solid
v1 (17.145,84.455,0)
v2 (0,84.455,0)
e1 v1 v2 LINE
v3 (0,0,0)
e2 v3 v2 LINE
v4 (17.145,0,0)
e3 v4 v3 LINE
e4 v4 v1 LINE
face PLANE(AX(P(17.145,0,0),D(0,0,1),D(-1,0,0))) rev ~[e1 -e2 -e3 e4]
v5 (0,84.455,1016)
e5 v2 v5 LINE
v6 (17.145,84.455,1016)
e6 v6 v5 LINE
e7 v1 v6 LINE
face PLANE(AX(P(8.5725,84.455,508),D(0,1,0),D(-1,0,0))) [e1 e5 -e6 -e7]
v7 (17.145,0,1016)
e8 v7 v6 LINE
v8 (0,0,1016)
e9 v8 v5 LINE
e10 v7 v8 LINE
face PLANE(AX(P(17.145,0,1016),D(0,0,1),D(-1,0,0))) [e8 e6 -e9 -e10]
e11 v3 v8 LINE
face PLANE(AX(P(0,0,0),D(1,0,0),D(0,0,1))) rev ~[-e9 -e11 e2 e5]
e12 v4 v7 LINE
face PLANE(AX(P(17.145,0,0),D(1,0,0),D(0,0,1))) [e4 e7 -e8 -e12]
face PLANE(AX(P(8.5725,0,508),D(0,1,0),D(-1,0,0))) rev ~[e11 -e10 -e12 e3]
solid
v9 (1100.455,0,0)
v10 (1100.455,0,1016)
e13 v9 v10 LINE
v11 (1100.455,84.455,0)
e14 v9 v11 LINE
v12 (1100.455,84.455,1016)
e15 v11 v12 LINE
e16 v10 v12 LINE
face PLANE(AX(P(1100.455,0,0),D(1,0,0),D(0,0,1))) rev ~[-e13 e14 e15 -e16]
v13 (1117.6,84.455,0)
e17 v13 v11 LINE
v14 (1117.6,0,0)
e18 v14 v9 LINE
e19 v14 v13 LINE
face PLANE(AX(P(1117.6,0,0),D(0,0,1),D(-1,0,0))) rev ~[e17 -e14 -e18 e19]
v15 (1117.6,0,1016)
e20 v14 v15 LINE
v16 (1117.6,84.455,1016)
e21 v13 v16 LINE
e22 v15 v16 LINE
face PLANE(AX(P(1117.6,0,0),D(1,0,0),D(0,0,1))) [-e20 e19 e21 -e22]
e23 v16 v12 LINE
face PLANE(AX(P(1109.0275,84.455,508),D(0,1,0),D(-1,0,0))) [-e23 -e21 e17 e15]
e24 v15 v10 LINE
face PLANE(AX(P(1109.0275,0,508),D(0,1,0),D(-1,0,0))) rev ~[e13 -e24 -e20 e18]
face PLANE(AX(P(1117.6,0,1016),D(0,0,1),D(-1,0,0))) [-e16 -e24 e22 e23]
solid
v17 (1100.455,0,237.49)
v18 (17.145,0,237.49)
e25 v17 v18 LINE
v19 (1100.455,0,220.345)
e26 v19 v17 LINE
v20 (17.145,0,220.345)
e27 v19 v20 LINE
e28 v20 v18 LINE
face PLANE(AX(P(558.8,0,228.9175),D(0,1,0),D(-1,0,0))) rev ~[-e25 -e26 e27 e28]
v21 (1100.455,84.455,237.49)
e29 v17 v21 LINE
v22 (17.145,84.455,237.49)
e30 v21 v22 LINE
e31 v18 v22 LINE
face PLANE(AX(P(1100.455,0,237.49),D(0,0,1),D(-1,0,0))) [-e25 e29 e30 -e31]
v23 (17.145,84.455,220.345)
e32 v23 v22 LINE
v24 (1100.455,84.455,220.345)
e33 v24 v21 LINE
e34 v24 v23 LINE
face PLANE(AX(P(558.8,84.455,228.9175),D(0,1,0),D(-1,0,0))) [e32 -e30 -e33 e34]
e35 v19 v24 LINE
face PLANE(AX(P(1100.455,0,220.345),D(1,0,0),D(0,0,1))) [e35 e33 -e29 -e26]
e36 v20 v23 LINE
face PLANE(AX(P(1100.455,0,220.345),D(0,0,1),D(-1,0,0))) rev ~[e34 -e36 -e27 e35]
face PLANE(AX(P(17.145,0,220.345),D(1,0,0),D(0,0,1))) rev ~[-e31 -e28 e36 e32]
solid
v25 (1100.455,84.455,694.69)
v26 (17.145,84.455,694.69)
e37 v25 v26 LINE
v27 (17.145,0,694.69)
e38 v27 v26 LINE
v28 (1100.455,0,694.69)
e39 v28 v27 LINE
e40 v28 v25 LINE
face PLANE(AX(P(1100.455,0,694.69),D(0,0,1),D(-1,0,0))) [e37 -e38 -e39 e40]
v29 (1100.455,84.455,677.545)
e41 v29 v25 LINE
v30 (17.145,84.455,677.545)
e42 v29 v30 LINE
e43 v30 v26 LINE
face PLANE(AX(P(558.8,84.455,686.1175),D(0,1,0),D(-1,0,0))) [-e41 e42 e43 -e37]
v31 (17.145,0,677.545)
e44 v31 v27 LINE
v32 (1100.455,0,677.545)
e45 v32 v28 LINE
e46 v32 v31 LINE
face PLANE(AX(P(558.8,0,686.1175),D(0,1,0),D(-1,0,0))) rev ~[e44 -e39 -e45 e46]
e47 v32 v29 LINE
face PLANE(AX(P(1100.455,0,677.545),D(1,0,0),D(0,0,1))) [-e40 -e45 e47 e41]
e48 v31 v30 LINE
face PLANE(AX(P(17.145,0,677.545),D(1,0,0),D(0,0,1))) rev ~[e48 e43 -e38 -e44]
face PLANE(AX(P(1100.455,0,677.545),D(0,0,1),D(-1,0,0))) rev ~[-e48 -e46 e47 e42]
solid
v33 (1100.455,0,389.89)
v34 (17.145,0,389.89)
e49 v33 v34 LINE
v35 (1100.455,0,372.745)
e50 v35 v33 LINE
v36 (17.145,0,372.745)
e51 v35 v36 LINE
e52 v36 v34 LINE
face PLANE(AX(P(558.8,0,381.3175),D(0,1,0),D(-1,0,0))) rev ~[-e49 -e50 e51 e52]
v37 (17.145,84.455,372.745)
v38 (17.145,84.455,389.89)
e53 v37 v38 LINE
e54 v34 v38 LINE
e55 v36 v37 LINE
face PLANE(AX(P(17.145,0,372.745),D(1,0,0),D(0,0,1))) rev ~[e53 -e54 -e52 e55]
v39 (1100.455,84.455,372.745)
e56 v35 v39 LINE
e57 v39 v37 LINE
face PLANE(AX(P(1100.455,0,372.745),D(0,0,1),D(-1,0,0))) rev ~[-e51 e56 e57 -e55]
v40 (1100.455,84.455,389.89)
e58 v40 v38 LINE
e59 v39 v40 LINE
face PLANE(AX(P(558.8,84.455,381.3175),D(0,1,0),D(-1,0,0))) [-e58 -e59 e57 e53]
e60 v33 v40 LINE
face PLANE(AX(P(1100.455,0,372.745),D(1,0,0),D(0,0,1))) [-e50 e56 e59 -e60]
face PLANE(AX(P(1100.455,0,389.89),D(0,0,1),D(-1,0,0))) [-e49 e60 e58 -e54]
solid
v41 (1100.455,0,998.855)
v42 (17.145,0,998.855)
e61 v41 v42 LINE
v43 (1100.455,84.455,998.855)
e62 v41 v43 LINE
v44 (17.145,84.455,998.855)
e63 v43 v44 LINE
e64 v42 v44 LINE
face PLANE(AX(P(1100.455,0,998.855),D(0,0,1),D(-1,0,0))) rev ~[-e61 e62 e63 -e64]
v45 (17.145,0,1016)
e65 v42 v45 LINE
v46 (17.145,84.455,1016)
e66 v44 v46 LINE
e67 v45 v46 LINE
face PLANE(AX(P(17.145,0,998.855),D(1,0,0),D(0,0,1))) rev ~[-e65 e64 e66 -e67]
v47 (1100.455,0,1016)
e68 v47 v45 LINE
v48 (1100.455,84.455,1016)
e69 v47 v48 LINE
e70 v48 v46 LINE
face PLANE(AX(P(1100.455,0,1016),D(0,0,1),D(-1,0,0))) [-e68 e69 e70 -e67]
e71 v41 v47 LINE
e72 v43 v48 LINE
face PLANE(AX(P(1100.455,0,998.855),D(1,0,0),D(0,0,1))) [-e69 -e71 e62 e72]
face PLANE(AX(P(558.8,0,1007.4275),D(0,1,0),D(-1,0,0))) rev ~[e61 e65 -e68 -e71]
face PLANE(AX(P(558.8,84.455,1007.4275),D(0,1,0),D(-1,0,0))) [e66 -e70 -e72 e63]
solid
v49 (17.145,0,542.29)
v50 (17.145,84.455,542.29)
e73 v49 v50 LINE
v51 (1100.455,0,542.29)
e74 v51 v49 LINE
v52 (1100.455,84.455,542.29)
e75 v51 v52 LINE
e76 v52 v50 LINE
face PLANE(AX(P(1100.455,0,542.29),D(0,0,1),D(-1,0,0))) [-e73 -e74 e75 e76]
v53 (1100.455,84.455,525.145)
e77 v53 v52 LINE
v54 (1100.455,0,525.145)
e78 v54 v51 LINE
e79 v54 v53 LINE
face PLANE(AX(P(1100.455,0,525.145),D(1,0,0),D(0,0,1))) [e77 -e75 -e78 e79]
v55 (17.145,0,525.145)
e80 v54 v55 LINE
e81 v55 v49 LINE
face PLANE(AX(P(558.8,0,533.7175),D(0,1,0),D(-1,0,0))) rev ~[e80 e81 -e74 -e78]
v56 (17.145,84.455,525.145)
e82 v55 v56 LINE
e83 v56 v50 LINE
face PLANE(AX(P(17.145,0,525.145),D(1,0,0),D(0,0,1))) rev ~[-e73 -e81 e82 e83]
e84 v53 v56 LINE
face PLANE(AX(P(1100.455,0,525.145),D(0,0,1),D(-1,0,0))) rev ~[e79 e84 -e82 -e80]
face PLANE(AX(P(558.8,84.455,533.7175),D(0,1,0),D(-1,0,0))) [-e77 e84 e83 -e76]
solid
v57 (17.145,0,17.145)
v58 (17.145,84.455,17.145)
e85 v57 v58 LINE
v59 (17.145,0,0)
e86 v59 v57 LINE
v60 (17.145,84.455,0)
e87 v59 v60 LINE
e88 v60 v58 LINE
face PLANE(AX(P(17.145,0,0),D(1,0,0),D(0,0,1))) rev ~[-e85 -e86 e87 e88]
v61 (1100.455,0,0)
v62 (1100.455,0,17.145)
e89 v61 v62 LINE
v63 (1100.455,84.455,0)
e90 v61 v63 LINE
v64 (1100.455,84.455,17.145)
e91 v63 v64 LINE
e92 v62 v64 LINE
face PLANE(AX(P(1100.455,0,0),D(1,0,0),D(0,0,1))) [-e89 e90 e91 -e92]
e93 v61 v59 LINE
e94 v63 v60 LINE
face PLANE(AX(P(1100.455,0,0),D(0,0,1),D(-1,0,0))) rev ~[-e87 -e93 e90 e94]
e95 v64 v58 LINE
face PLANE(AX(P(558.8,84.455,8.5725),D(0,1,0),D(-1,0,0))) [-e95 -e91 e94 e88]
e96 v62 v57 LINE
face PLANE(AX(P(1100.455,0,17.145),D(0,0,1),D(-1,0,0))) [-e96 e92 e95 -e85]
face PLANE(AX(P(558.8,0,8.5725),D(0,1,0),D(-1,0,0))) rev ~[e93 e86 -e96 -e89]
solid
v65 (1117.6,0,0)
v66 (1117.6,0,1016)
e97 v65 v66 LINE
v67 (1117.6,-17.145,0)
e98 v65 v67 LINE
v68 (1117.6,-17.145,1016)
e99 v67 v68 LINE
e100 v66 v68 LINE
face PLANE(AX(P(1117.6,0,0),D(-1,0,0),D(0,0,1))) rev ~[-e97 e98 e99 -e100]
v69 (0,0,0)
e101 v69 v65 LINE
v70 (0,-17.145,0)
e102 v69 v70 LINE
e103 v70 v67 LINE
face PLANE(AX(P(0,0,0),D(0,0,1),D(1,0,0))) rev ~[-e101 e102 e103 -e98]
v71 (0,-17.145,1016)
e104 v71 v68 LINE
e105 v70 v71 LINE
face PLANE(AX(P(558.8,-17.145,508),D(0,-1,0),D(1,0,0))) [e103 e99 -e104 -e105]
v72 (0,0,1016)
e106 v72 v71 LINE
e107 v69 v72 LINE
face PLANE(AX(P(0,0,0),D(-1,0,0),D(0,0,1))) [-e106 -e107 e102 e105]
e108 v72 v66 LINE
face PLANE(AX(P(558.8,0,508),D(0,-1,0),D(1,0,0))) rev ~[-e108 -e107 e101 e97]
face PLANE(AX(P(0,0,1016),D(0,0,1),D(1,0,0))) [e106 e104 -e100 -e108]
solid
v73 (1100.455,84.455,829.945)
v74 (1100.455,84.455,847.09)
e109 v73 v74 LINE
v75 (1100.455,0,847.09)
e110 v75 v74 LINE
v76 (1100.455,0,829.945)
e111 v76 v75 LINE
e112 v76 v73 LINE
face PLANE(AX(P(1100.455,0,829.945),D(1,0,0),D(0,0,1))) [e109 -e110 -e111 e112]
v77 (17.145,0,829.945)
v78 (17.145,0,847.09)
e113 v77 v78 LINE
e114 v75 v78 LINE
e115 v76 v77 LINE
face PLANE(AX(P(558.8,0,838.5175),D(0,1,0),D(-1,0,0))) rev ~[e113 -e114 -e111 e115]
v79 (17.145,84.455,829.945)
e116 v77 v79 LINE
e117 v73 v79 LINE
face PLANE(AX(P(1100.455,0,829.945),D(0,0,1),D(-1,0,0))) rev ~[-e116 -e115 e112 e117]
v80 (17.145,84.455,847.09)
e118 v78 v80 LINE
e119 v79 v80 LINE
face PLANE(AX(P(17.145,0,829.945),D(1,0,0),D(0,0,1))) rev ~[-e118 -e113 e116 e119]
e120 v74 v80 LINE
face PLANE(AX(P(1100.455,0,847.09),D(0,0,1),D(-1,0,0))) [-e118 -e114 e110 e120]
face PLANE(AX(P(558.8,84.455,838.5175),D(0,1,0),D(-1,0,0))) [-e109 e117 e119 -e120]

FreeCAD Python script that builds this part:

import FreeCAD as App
import Part
import Sketcher
Q = App.Units.Quantity

doc = App.newDocument("Part")
params = doc.addObject("Spreadsheet::Sheet", "Params")
for row, (alias, value) in enumerate([
    ("sketch1_width", "44 in"),
    ("sketch1_height", "40 in"),
    ("pad1_length", "0.675 in"),
    ("sketch2_height", "40 in"),
    ("sketch2_width", "0.675 in"),
    ("pad2_length", "3.325 in"),
    ("sketch3_height", "40 in"),
    ("sketch3_width", "0.675 in"),
    ("pad3_length", "3.325 in"),
    ("sketch4_width", "42.65 in"),
    ("sketch4_height", "0.675 in"),
    ("pad4_length", "3.325 in"),
    ("sketch5_width", "42.65 in"),
    ("sketch5_height", "0.675 in"),
    ("pad5_length", "3.325 in"),
], start=1):
    params.set(f"A{row}", alias)
    params.set(f"B{row}", "=" + value)
    params.setAlias(f"B{row}", alias)

body = doc.addObject("PartDesign::Body", "Body")

# Sketch on XZ plane
sketch1 = body.newObject("Sketcher::SketchObject", "Sketch")
sketch1.AttachmentSupport = (doc.getObject("XZ_Plane"), [""])
sketch1.MapMode = "FlatFace"
sketch1.addGeometry([
    Part.LineSegment(App.Vector(0, 1016, 0), App.Vector(0, 0, 0)),
    Part.LineSegment(App.Vector(0, 0, 0), App.Vector(1118, 0, 0)),
    Part.LineSegment(App.Vector(1118, 0, 0), App.Vector(1118, 1016, 0)),
    Part.LineSegment(App.Vector(1118, 1016, 0), App.Vector(0, 1016, 0)),
], False)
sketch1.addConstraint([
    Sketcher.Constraint("Coincident", 0, 2, 1, 1),
    Sketcher.Constraint("Coincident", 1, 2, 2, 1),
    Sketcher.Constraint("Coincident", 2, 2, 3, 1),
    Sketcher.Constraint("Coincident", 3, 2, 0, 1),
    Sketcher.Constraint("Vertical", 0),
    Sketcher.Constraint("Horizontal", 1),
    Sketcher.Constraint("Vertical", 2),
    Sketcher.Constraint("Horizontal", 3),
    Sketcher.Constraint("Coincident", 0, 2, -1, 1),
    Sketcher.Constraint("DistanceX", 1, 1, 1, 2, Q("44 in")),
    Sketcher.Constraint("DistanceY", 0, 2, 0, 1, Q("40 in")),
])
sketch1.setExpression("Constraints[9]", "Params.sketch1_width")
sketch1.setExpression("Constraints[10]", "Params.sketch1_height")
pad1 = body.newObject("PartDesign::Pad", "Pad")
pad1.Profile = sketch1
pad1.setExpression("Length", "Params.pad1_length")
body2 = doc.addObject("PartDesign::Body", "Body001")

# Sketch on XZ plane
sketch2 = body2.newObject("Sketcher::SketchObject", "Sketch001")
sketch2.AttachmentSupport = (doc.getObject("XZ_Plane001"), [""])
sketch2.MapMode = "FlatFace"
sketch2.addGeometry([
    Part.LineSegment(App.Vector(17, 1016, 0), App.Vector(17, 0, 0)),
    Part.LineSegment(App.Vector(17, 0, 0), App.Vector(0, 0, 0)),
    Part.LineSegment(App.Vector(0, 0, 0), App.Vector(0, 1016, 0)),
    Part.LineSegment(App.Vector(0, 1016, 0), App.Vector(17, 1016, 0)),
], False)
sketch2.addConstraint([
    Sketcher.Constraint("Coincident", 0, 2, 1, 1),
    Sketcher.Constraint("Coincident", 1, 2, 2, 1),
    Sketcher.Constraint("Coincident", 2, 2, 3, 1),
    Sketcher.Constraint("Coincident", 3, 2, 0, 1),
    Sketcher.Constraint("Vertical", 0),
    Sketcher.Constraint("Horizontal", 1),
    Sketcher.Constraint("Vertical", 2),
    Sketcher.Constraint("Horizontal", 3),
    Sketcher.Constraint("Coincident", 1, 2, -1, 1),
    Sketcher.Constraint("DistanceY", 0, 2, 0, 1, Q("40 in")),
    Sketcher.Constraint("DistanceX", 1, 2, 1, 1, Q("0.675 in")),
])
sketch2.setExpression("Constraints[9]", "Params.sketch2_height")
sketch2.setExpression("Constraints[10]", "Params.sketch2_width")
pad2 = body2.newObject("PartDesign::Pad", "Pad001")
pad2.Profile = sketch2
pad2.setExpression("Length", "Params.pad2_length")
pad2.Reversed = True
body3 = doc.addObject("PartDesign::Body", "Body002")

# Sketch on XZ plane
sketch3 = body3.newObject("Sketcher::SketchObject", "Sketch002")
sketch3.AttachmentSupport = (doc.getObject("XZ_Plane002"), [""])
sketch3.MapMode = "FlatFace"
sketch3.addGeometry([
    Part.LineSegment(App.Vector(1118, 1016, 0), App.Vector(1118, 0, 0)),
    Part.LineSegment(App.Vector(1118, 0, 0), App.Vector(1100, 0, 0)),
    Part.LineSegment(App.Vector(1100, 0, 0), App.Vector(1100, 1016, 0)),
    Part.LineSegment(App.Vector(1100, 1016, 0), App.Vector(1118, 1016, 0)),
], False)
sketch3.addConstraint([
    Sketcher.Constraint("Coincident", 0, 2, 1, 1),
    Sketcher.Constraint("Coincident", 1, 2, 2, 1),
    Sketcher.Constraint("Coincident", 2, 2, 3, 1),
    Sketcher.Constraint("Coincident", 3, 2, 0, 1),
    Sketcher.Constraint("Vertical", 0),
    Sketcher.Constraint("Horizontal", 1),
    Sketcher.Constraint("Vertical", 2),
    Sketcher.Constraint("Horizontal", 3),
    Sketcher.Constraint("PointOnObject", 0, 2, -1),
    Sketcher.Constraint("DistanceY", 0, 2, 0, 1, Q("40 in")),
    Sketcher.Constraint("DistanceX", -1, 1, 0, 2, Q("44 in")),
    Sketcher.Constraint("DistanceX", 1, 2, 1, 1, Q("0.675 in")),
])
sketch3.setExpression("Constraints[9]", "Params.sketch3_height")
sketch3.setExpression("Constraints[11]", "Params.sketch3_width")
pad3 = body3.newObject("PartDesign::Pad", "Pad002")
pad3.Profile = sketch3
pad3.setExpression("Length", "Params.pad3_length")
pad3.Reversed = True
body4 = doc.addObject("PartDesign::Body", "Body003")
body4.AllowCompound = True

# Sketch on XZ plane
sketch4 = body4.newObject("Sketcher::SketchObject", "Sketch003")
sketch4.AttachmentSupport = (doc.getObject("XZ_Plane003"), [""])
sketch4.MapMode = "FlatFace"
sketch4.addGeometry([
    Part.LineSegment(App.Vector(1100, 1016, 0), App.Vector(1100, 999, 0)),  # 0
    Part.LineSegment(App.Vector(1100, 999, 0), App.Vector(17, 999, 0)),  # 1
    Part.LineSegment(App.Vector(17, 999, 0), App.Vector(17, 1016, 0)),  # 2
    Part.LineSegment(App.Vector(17, 1016, 0), App.Vector(1100, 1016, 0)),  # 3
    Part.LineSegment(App.Vector(1100, 17, 0), App.Vector(1100, 0, 0)),  # 4
    Part.LineSegment(App.Vector(1100, 0, 0), App.Vector(17, 0, 0)),  # 5
    Part.LineSegment(App.Vector(17, 0, 0), App.Vector(17, 17, 0)),  # 6
    Part.LineSegment(App.Vector(17, 17, 0), App.Vector(1100, 17, 0)),  # 7
], False)
sketch4.addConstraint([
    Sketcher.Constraint("Coincident", 0, 2, 1, 1),
    Sketcher.Constraint("Coincident", 1, 2, 2, 1),
    Sketcher.Constraint("Coincident", 2, 2, 3, 1),
    Sketcher.Constraint("Coincident", 3, 2, 0, 1),
    Sketcher.Constraint("Coincident", 4, 2, 5, 1),
    Sketcher.Constraint("Coincident", 5, 2, 6, 1),
    Sketcher.Constraint("Coincident", 6, 2, 7, 1),
    Sketcher.Constraint("Coincident", 7, 2, 4, 1),
    Sketcher.Constraint("Vertical", 0),
    Sketcher.Constraint("Horizontal", 1),
    Sketcher.Constraint("Vertical", 2),
    Sketcher.Constraint("Horizontal", 3),
    Sketcher.Constraint("Vertical", 4),
    Sketcher.Constraint("Horizontal", 5),
    Sketcher.Constraint("Vertical", 6),
    Sketcher.Constraint("Horizontal", 7),
    Sketcher.Constraint("PointOnObject", 4, 2, -1),
    Sketcher.Constraint("Vertical", 3, 2, 4, 2),
    Sketcher.Constraint("Vertical", 2, 2, 5, 2),
    Sketcher.Constraint("Equal", 2, 4),
    Sketcher.Constraint("DistanceY", -1, 1, 2, 2, Q("40 in")),
    Sketcher.Constraint("DistanceX", 1, 2, 1, 1, Q("42.65 in")),
    Sketcher.Constraint("DistanceY", 0, 2, 0, 1, Q("0.675 in")),
    Sketcher.Constraint("DistanceX", -1, 1, 0, 2, Q("43.325 in")),
])
sketch4.setExpression("Constraints[21]", "Params.sketch4_width")
sketch4.setExpression("Constraints[22]", "Params.sketch4_height")
pad4 = body4.newObject("PartDesign::Pad", "Pad003")
pad4.Profile = sketch4
pad4.setExpression("Length", "Params.pad4_length")
pad4.Reversed = True
body5 = doc.addObject("PartDesign::Body", "Body004")
body5.AllowCompound = True

# Sketch on XZ plane
sketch5 = body5.newObject("Sketcher::SketchObject", "Sketch004")
sketch5.AttachmentSupport = (doc.getObject("XZ_Plane004"), [""])
sketch5.MapMode = "FlatFace"
sketch5.addGeometry([
    Part.LineSegment(App.Vector(1100, 237, 0), App.Vector(1100, 220, 0)),  # 0
    Part.LineSegment(App.Vector(1100, 220, 0), App.Vector(17, 220, 0)),  # 1
    Part.LineSegment(App.Vector(17, 220, 0), App.Vector(17, 237, 0)),  # 2
    Part.LineSegment(App.Vector(17, 237, 0), App.Vector(1100, 237, 0)),  # 3
    Part.LineSegment(App.Vector(1100, 390, 0), App.Vector(1100, 373, 0)),  # 4
    Part.LineSegment(App.Vector(1100, 373, 0), App.Vector(17, 373, 0)),  # 5
    Part.LineSegment(App.Vector(17, 373, 0), App.Vector(17, 390, 0)),  # 6
    Part.LineSegment(App.Vector(17, 390, 0), App.Vector(1100, 390, 0)),  # 7
    Part.LineSegment(App.Vector(1100, 542, 0), App.Vector(1100, 525, 0)),  # 8
    Part.LineSegment(App.Vector(1100, 525, 0), App.Vector(17, 525, 0)),  # 9
    Part.LineSegment(App.Vector(17, 525, 0), App.Vector(17, 542, 0)),  # 10
    Part.LineSegment(App.Vector(17, 542, 0), App.Vector(1100, 542, 0)),  # 11
    Part.LineSegment(App.Vector(1100, 695, 0), App.Vector(1100, 678, 0)),  # 12
    Part.LineSegment(App.Vector(1100, 678, 0), App.Vector(17, 678, 0)),  # 13
    Part.LineSegment(App.Vector(17, 678, 0), App.Vector(17, 695, 0)),  # 14
    Part.LineSegment(App.Vector(17, 695, 0), App.Vector(1100, 695, 0)),  # 15
    Part.LineSegment(App.Vector(1100, 847, 0), App.Vector(1100, 830, 0)),  # 16
    Part.LineSegment(App.Vector(1100, 830, 0), App.Vector(17, 830, 0)),  # 17
    Part.LineSegment(App.Vector(17, 830, 0), App.Vector(17, 847, 0)),  # 18
    Part.LineSegment(App.Vector(17, 847, 0), App.Vector(1100, 847, 0)),  # 19
], False)
sketch5.addConstraint([
    Sketcher.Constraint("Coincident", 0, 2, 1, 1),
    Sketcher.Constraint("Coincident", 1, 2, 2, 1),
    Sketcher.Constraint("Coincident", 2, 2, 3, 1),
    Sketcher.Constraint("Coincident", 3, 2, 0, 1),
    Sketcher.Constraint("Coincident", 4, 2, 5, 1),
    Sketcher.Constraint("Coincident", 5, 2, 6, 1),
    Sketcher.Constraint("Coincident", 6, 2, 7, 1),
    Sketcher.Constraint("Coincident", 7, 2, 4, 1),
    Sketcher.Constraint("Coincident", 8, 2, 9, 1),
    Sketcher.Constraint("Coincident", 9, 2, 10, 1),
    Sketcher.Constraint("Coincident", 10, 2, 11, 1),
    Sketcher.Constraint("Coincident", 11, 2, 8, 1),
    Sketcher.Constraint("Coincident", 12, 2, 13, 1),
    Sketcher.Constraint("Coincident", 13, 2, 14, 1),
    Sketcher.Constraint("Coincident", 14, 2, 15, 1),
    Sketcher.Constraint("Coincident", 15, 2, 12, 1),
    Sketcher.Constraint("Coincident", 16, 2, 17, 1),
    Sketcher.Constraint("Coincident", 17, 2, 18, 1),
    Sketcher.Constraint("Coincident", 18, 2, 19, 1),
    Sketcher.Constraint("Coincident", 19, 2, 16, 1),
    Sketcher.Constraint("Vertical", 0),
    Sketcher.Constraint("Horizontal", 1),
    Sketcher.Constraint("Vertical", 2),
    Sketcher.Constraint("Horizontal", 3),
    Sketcher.Constraint("Vertical", 4),
    Sketcher.Constraint("Horizontal", 5),
    Sketcher.Constraint("Vertical", 6),
    Sketcher.Constraint("Horizontal", 7),
    Sketcher.Constraint("Vertical", 8),
    Sketcher.Constraint("Horizontal", 9),
    Sketcher.Constraint("Vertical", 10),
    Sketcher.Constraint("Horizontal", 11),
    Sketcher.Constraint("Vertical", 12),
    Sketcher.Constraint("Horizontal", 13),
    Sketcher.Constraint("Vertical", 14),
    Sketcher.Constraint("Horizontal", 15),
    Sketcher.Constraint("Vertical", 16),
    Sketcher.Constraint("Horizontal", 17),
    Sketcher.Constraint("Vertical", 18),
    Sketcher.Constraint("Horizontal", 19),
    Sketcher.Constraint("Vertical", 3, 2, 4, 2),
    Sketcher.Constraint("Vertical", 2, 2, 5, 2),
    Sketcher.Constraint("Vertical", 7, 2, 8, 2),
    Sketcher.Constraint("Vertical", 6, 2, 9, 2),
    Sketcher.Constraint("Vertical", 11, 2, 12, 2),
    Sketcher.Constraint("Vertical", 10, 2, 13, 2),
    Sketcher.Constraint("Vertical", 15, 2, 16, 2),
    Sketcher.Constraint("Vertical", 14, 2, 17, 2),
    Sketcher.Constraint("Equal", 2, 4),
    Sketcher.Constraint("Equal", 6, 8),
    Sketcher.Constraint("Equal", 10, 12),
    Sketcher.Constraint("Equal", 14, 16),
    Sketcher.Constraint("DistanceY", 0, 2, 4, 2, Q("6 in")),
    Sketcher.Constraint("DistanceY", 4, 2, 8, 2, Q("6 in")),
    Sketcher.Constraint("DistanceY", 8, 2, 12, 2, Q("6 in")),
    Sketcher.Constraint("DistanceY", 12, 2, 16, 2, Q("6 in")),
    Sketcher.Constraint("DistanceX", 1, 2, 1, 1, Q("42.65 in")),
    Sketcher.Constraint("DistanceY", 0, 2, 0, 1, Q("0.675 in")),
    Sketcher.Constraint("DistanceY", -1, 1, 2, 2, Q("9.35 in")),
    Sketcher.Constraint("DistanceX", -1, 1, 0, 2, Q("43.325 in")),
])
sketch5.setExpression("Constraints[56]", "Params.sketch5_width")
sketch5.setExpression("Constraints[57]", "Params.sketch5_height")
pad5 = body5.newObject("PartDesign::Pad", "Pad004")
pad5.Profile = sketch5
pad5.setExpression("Length", "Params.pad5_length")
pad5.Reversed = True

doc.recompute()
